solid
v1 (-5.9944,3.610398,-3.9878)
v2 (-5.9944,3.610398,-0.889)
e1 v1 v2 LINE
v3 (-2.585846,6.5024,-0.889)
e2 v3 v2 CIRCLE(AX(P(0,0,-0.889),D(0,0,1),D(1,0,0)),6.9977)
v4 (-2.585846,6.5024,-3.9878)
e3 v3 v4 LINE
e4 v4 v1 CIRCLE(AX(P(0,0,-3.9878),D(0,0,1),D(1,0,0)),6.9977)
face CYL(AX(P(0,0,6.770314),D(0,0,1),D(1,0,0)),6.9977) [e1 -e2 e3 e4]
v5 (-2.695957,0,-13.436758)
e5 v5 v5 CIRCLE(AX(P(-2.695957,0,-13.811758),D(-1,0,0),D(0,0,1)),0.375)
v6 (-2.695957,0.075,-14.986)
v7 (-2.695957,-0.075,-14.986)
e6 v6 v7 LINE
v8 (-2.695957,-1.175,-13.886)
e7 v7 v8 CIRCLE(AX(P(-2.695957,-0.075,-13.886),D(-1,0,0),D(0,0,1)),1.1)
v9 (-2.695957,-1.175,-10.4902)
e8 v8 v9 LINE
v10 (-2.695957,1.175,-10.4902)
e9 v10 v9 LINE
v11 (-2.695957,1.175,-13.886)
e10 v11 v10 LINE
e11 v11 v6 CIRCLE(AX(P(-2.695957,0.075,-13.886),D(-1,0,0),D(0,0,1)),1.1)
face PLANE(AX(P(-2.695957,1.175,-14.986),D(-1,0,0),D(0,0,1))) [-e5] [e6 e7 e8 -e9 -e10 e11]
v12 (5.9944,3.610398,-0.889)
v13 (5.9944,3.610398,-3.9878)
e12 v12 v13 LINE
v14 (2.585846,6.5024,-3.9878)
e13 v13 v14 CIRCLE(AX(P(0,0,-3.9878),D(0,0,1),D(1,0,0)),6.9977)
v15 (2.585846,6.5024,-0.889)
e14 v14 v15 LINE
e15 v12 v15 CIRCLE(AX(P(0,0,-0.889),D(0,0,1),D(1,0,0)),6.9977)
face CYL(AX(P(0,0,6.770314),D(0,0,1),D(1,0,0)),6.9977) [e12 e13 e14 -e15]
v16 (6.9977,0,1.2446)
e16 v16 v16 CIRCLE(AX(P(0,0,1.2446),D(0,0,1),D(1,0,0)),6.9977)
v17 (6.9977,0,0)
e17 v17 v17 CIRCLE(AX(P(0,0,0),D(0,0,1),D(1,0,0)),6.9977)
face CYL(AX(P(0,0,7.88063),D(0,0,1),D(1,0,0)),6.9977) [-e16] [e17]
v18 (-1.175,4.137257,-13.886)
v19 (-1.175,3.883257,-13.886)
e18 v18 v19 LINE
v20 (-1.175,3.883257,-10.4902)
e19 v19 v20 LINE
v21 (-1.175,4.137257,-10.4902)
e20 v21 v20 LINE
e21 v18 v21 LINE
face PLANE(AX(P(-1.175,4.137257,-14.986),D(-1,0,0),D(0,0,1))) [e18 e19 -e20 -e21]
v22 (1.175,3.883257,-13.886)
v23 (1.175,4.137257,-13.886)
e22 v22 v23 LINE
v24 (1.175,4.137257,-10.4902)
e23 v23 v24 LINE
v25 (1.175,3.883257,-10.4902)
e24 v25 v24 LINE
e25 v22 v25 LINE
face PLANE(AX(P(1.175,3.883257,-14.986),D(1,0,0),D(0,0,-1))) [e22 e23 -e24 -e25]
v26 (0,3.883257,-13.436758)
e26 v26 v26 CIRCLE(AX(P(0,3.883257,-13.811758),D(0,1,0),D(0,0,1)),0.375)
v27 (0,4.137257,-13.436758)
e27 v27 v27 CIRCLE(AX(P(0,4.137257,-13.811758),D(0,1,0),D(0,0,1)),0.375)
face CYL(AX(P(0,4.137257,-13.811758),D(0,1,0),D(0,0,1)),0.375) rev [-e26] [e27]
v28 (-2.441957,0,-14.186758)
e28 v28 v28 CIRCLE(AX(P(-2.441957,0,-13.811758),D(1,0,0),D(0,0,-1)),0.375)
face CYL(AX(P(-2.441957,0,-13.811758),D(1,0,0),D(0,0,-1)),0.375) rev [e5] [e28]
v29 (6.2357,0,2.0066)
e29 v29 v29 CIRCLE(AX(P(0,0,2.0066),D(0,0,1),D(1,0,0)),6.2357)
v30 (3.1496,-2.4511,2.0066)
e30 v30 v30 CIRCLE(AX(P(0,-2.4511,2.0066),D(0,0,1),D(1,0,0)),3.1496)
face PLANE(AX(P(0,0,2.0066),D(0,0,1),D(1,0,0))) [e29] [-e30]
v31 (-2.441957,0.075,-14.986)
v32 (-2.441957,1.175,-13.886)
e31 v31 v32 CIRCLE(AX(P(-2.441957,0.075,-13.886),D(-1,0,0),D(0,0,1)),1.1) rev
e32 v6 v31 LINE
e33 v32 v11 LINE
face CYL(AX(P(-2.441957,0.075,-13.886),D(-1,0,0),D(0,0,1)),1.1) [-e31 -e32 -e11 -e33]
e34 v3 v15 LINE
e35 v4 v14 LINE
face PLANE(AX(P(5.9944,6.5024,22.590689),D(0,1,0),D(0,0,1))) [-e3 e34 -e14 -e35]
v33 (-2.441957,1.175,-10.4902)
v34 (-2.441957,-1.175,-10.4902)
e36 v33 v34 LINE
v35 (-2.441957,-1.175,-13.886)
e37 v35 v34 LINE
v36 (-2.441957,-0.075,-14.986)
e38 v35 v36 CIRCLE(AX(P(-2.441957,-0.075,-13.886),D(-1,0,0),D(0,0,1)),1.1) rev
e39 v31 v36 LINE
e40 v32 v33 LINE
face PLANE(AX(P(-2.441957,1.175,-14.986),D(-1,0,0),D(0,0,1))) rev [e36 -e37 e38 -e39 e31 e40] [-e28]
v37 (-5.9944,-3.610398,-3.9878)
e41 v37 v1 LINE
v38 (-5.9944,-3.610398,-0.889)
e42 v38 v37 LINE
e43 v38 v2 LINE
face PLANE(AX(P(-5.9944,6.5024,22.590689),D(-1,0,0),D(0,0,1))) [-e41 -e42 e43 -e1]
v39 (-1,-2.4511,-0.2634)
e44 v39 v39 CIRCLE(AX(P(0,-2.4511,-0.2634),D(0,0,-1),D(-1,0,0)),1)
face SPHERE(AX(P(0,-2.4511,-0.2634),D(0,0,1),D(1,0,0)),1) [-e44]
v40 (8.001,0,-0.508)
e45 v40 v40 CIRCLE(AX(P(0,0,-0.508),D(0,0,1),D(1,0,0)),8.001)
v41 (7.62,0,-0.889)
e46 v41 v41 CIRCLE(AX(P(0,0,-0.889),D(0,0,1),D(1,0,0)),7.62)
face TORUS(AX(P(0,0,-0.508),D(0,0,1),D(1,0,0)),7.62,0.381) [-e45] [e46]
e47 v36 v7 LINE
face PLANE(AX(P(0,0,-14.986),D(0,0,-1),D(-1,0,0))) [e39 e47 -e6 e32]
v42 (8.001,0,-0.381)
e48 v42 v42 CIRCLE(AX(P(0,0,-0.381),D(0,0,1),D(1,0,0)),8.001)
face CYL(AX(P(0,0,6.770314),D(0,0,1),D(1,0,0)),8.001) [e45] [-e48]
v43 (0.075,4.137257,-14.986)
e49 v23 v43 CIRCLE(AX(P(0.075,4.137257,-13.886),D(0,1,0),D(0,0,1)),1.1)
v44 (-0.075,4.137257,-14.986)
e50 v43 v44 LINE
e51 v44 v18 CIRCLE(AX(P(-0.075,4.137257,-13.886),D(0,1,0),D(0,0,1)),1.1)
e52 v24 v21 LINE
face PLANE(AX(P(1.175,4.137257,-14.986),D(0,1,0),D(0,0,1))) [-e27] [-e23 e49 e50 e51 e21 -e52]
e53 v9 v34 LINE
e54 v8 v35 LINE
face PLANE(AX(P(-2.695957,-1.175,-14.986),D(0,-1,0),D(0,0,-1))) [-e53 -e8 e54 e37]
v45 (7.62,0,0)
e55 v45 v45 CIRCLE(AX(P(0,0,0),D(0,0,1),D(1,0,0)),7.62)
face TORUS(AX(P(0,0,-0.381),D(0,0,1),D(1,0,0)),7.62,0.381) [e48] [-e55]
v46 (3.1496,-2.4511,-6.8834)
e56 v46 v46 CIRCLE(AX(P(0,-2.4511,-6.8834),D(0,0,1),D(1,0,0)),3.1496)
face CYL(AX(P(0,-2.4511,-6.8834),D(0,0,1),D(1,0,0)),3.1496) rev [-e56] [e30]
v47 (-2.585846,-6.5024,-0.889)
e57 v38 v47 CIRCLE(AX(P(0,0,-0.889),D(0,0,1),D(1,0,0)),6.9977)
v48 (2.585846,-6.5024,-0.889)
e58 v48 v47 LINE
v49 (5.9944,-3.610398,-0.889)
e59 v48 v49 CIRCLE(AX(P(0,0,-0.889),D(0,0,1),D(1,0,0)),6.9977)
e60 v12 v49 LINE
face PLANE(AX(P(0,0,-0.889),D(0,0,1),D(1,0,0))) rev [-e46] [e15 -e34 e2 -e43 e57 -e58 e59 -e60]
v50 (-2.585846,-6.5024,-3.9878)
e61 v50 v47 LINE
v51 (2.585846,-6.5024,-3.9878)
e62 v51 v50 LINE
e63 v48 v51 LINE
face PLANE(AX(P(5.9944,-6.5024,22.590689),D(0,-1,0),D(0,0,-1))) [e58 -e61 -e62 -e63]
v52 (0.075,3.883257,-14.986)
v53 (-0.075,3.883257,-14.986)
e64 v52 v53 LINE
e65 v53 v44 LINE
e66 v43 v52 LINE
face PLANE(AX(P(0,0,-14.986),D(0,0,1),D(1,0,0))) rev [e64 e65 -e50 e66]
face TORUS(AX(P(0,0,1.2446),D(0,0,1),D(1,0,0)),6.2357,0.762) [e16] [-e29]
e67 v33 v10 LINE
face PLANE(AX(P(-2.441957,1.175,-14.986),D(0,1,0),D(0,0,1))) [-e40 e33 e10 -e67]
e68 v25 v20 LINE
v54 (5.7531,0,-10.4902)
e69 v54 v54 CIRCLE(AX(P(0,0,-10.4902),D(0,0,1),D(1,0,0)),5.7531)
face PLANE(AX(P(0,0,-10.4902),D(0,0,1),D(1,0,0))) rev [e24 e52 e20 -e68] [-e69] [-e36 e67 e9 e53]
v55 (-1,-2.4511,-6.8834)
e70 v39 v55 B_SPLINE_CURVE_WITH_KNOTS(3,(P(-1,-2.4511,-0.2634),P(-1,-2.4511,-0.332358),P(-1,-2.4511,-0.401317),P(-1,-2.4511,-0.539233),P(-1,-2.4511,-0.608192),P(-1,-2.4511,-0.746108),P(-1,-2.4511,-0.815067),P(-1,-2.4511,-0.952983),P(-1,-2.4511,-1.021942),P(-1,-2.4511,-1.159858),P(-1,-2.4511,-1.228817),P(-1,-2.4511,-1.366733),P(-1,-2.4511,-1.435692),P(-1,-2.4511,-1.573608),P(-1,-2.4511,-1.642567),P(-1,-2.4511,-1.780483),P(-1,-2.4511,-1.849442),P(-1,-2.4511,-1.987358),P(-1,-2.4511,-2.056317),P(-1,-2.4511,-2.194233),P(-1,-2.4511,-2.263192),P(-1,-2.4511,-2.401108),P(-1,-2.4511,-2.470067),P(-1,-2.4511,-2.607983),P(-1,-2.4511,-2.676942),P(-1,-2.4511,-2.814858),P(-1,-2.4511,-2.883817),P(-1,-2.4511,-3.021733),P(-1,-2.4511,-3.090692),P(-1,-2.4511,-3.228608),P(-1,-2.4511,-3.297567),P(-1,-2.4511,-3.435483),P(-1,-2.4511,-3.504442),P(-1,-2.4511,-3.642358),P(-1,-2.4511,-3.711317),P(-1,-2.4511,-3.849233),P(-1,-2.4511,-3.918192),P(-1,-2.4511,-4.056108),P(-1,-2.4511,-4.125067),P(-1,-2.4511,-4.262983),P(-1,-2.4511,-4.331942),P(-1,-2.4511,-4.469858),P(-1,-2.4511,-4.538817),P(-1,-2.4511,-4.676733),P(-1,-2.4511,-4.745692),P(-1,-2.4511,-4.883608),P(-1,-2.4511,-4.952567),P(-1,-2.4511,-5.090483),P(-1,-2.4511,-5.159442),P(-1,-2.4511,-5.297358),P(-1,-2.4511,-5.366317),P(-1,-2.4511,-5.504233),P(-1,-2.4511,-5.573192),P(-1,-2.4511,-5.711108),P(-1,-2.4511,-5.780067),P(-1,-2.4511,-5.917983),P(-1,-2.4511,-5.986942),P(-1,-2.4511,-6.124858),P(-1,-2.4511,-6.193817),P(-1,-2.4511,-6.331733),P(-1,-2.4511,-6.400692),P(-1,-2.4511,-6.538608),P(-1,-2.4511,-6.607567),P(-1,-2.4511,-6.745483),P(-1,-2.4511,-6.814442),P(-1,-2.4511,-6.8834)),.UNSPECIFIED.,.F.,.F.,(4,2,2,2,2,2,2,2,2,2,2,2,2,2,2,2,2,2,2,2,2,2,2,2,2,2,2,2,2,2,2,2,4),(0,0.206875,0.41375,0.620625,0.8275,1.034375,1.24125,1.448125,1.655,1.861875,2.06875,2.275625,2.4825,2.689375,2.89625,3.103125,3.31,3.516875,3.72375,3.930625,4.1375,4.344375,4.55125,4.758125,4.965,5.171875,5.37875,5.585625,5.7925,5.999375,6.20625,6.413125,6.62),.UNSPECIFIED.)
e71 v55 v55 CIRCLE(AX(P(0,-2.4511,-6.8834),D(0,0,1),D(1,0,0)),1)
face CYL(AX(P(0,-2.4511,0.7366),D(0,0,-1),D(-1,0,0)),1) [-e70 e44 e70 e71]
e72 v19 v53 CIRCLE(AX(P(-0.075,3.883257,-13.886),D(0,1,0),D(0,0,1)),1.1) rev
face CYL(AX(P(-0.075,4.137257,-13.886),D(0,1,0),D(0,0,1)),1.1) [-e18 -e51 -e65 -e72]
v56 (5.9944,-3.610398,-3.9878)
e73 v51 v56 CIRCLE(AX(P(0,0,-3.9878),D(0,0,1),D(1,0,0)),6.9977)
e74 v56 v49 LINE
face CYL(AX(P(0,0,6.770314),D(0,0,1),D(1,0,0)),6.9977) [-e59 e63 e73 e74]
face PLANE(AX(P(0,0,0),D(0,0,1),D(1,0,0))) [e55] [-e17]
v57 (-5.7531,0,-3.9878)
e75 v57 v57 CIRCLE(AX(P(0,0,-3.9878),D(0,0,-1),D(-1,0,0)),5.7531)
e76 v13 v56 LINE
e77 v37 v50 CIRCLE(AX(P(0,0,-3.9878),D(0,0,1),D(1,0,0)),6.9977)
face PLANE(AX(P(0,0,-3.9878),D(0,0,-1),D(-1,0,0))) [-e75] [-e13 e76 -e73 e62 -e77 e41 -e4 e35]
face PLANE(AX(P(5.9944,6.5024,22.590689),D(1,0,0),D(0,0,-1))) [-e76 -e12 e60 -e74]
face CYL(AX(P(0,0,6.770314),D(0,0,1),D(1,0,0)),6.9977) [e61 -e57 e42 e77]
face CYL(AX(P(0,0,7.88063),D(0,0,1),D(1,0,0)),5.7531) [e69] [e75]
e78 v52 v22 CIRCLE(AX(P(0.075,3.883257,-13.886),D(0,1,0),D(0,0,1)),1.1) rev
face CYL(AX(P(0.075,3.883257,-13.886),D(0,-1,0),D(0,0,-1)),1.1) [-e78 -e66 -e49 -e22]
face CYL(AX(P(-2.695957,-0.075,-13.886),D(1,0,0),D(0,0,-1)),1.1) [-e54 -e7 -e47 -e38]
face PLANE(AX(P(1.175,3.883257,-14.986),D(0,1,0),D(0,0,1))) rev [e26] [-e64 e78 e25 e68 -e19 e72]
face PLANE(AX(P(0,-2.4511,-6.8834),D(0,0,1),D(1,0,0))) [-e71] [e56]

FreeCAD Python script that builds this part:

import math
import FreeCAD as App
import Part
import Sketcher
from FreeCAD import Vector
Q = App.Units.Quantity


def edges_at(feature, points):
    """Names of the edges that pass closest to the given points."""
    edges = feature.Shape.Edges
    near = lambda p: min(range(len(edges)), key=lambda i: edges[i].distToShape(Part.Vertex(*p))[0])
    return sorted({f"Edge{near(p) + 1}" for p in points})

doc = App.newDocument("Part")
body = doc.addObject("PartDesign::Body", "Body")

# Sketch on YZ plane
sketch1 = body.newObject("Sketcher::SketchObject", "Sketch")
sketch1.AttachmentSupport = (doc.getObject("YZ_Plane"), [""])
sketch1.MapMode = "FlatFace"
sketch1.addGeometry([
    Part.LineSegment(Vector(0, 2, 0), Vector(0, -10.5, 0)),  # 0
    Part.LineSegment(Vector(0, -10.5, 0), Vector(5.8, -10.5, 0)),  # 1
    Part.LineSegment(Vector(5.8, -10.5, 0), Vector(5.8, 0, 0)),  # 2
    Part.LineSegment(Vector(5.8, 0, 0), Vector(7, 0, 0)),  # 3
    Part.LineSegment(Vector(7, 0, 0), Vector(7, 1.2, 0)),  # 4
    Part.ArcOfCircle(Part.Circle(Vector(6.2, 1.2, 0), Vector(0, 0, 1), 0.8), math.radians(0), math.radians(90)),  # 5
    Part.LineSegment(Vector(6.2, 2, 0), Vector(0, 2, 0)),  # 6
], False)
sketch1.addConstraint([
    Sketcher.Constraint("Coincident", 0, 2, 1, 1),
    Sketcher.Constraint("Coincident", 1, 2, 2, 1),
    Sketcher.Constraint("Coincident", 2, 2, 3, 1),
    Sketcher.Constraint("Coincident", 3, 2, 4, 1),
    Sketcher.Constraint("Tangent", 4, 2, 5, 1),
    Sketcher.Constraint("Tangent", 5, 2, 6, 1),
    Sketcher.Constraint("Coincident", 6, 2, 0, 1),
    Sketcher.Constraint("Vertical", 0),
    Sketcher.Constraint("Horizontal", 1),
    Sketcher.Constraint("Vertical", 2),
    Sketcher.Constraint("Horizontal", 3),
    Sketcher.Constraint("Vertical", 4),
    Sketcher.Constraint("Horizontal", 6),
    Sketcher.Constraint("PointOnObject", 0, 2, -2),
    Sketcher.Constraint("PointOnObject", 2, 2, -1),
    Sketcher.Constraint("Equal", 3, 4),
    Sketcher.Constraint("Radius", 5, Q("0.03 in")),
    Sketcher.Constraint("DistanceX", 3, 1, 3, 2, Q("0.049 in")),
    Sketcher.Constraint("DistanceY", 0, 2, 0, 1, Q("0.492 in")),
    Sketcher.Constraint("DistanceX", 1, 1, 1, 2, Q("0.2265 in")),
])
revolution = body.newObject("PartDesign::Revolution", "Revolution")
revolution.Profile = sketch1
revolution.ReferenceAxis = (sketch1, ["V_Axis"])
revolution.Angle = 360

# Sketch on XY plane
sketch2 = body.newObject("Sketcher::SketchObject", "Sketch001")
sketch2.AttachmentSupport = (doc.getObject("XY_Plane"), [""])
sketch2.MapMode = "FlatFace"
sketch2.AttachmentOffset = App.Placement(Vector(0, 0, 0.079 * 25.4), App.Rotation())
sketch2.addGeometry(Part.Circle(Vector(0, -2.5, 0), Vector(0, 0, 1), 3.1), False)
sketch2.addConstraint([
    Sketcher.Constraint("PointOnObject", 0, 3, -2),
    Sketcher.Constraint("Diameter", 0, Q("0.248 in")),
    Sketcher.Constraint("DistanceY", 0, 3, -1, 1, Q("0.0965 in")),
])
pocket1 = body.newObject("PartDesign::Pocket", "Pocket")
pocket1.Profile = sketch2
pocket1.Length = Q("0.35 in")
body2 = doc.addObject("PartDesign::Body", "Body001")

# Sketch on YZ plane
sketch3 = body2.newObject("Sketcher::SketchObject", "Sketch002")
sketch3.AttachmentSupport = (doc.getObject("YZ_Plane001"), [""])
sketch3.MapMode = "FlatFace"
sketch3.addGeometry([
    Part.LineSegment(Vector(5.75, -3.99, 0), Vector(7, -3.99, 0)),  # 0
    Part.LineSegment(Vector(7, -3.99, 0), Vector(7, -0.89, 0)),  # 1
    Part.LineSegment(Vector(7, -0.89, 0), Vector(7.62, -0.89, 0)),  # 2
    Part.ArcOfCircle(Part.Circle(Vector(7.62, -0.51, 0), Vector(0, 0, 1), 0.38), math.radians(-90), math.radians(0)),  # 3
    Part.LineSegment(Vector(8, -0.51, 0), Vector(8, -0.38, 0)),  # 4
    Part.ArcOfCircle(Part.Circle(Vector(7.62, -0.38, 0), Vector(0, 0, 1), 0.38), math.radians(0), math.radians(90)),  # 5
    Part.LineSegment(Vector(7.62, 0, 0), Vector(5.75, 0, 0)),  # 6
    Part.LineSegment(Vector(5.75, 0, 0), Vector(5.75, -3.99, 0)),  # 7
], False)
sketch3.addConstraint([
    Sketcher.Constraint("Coincident", 0, 2, 1, 1),
    Sketcher.Constraint("Coincident", 1, 2, 2, 1),
    Sketcher.Constraint("Tangent", 2, 2, 3, 1),
    Sketcher.Constraint("Tangent", 3, 2, 4, 1),
    Sketcher.Constraint("Tangent", 4, 2, 5, 1),
    Sketcher.Constraint("Tangent", 5, 2, 6, 1),
    Sketcher.Constraint("Coincident", 6, 2, 7, 1),
    Sketcher.Constraint("Coincident", 7, 2, 0, 1),
    Sketcher.Constraint("Horizontal", 0),
    Sketcher.Constraint("Vertical", 1),
    Sketcher.Constraint("Horizontal", 2),
    Sketcher.Constraint("Vertical", 4),
    Sketcher.Constraint("Horizontal", 6),
    Sketcher.Constraint("Vertical", 7),
    Sketcher.Constraint("Equal", 3, 5),
    Sketcher.Constraint("PointOnObject", 5, 2, -1),
    Sketcher.Constraint("Radius", 3, Q("0.015 in")),
    Sketcher.Constraint("DistanceX", -1, 1, 3, 3, Q("0.3 in")),
    Sketcher.Constraint("DistanceX", 0, 1, 0, 2, Q("0.049 in")),
    Sketcher.Constraint("DistanceY", 1, 1, 1, 2, Q("0.122 in")),
    Sketcher.Constraint("DistanceY", 4, 1, 4, 2, Q("0.005 in")),
    Sketcher.Constraint("DistanceX", 2, 1, 2, 2, Q("0.0245 in")),
])
revolution2 = body2.newObject("PartDesign::Revolution", "Revolution001")
revolution2.Profile = sketch3
revolution2.ReferenceAxis = (sketch3, ["V_Axis"])
revolution2.Angle = 360
doc.recompute()

boolean = body2.newObject("PartDesign::Boolean", "Boolean")
boolean.Type = "Fuse"
boolean.addObjects([body])

# Sketch on XY plane
sketch4 = body2.newObject("Sketcher::SketchObject", "Sketch003")
sketch4.AttachmentSupport = (doc.getObject("XY_Plane001"), [""])
sketch4.MapMode = "FlatFace"
sketch4.AttachmentOffset = App.Placement(Vector(0, 0, -0.271 * 25.4), App.Rotation())
sketch4.addGeometry(Part.Circle(Vector(0, -2.5, 0), Vector(0, 0, 1), 1), False)
sketch4.addConstraint([
    Sketcher.Constraint("PointOnObject", 0, 3, -2),
    Sketcher.Constraint("Diameter", 0, Q("2 mm")),
    Sketcher.Constraint("DistanceY", 0, 3, -1, 1, Q("0.0965 in")),
])
pad1 = body2.newObject("PartDesign::Pad", "Pad")
pad1.Profile = sketch4
pad1.Length = Q("0.3 in")
doc.recompute()

fillet = body2.newObject("PartDesign::Fillet", "Fillet")
fillet.Base = (pad1, edges_at(pad1, [(1, -2.451, 0.737)]))
fillet.Radius = 1

# Sketch on XY plane
sketch5 = body2.newObject("Sketcher::SketchObject", "Sketch004")
sketch5.AttachmentSupport = (doc.getObject("XY_Plane001"), [""])
sketch5.MapMode = "FlatFace"
sketch5.AttachmentOffset = App.Placement(Vector(0, 0, -0.413 * 25.4), App.Rotation())
sketch5.addGeometry([
    Part.LineSegment(Vector(1.18, 4.14, 0), Vector(1.18, 3.88, 0)),  # 0
    Part.LineSegment(Vector(1.18, 3.88, 0), Vector(-1.18, 3.88, 0)),  # 1
    Part.LineSegment(Vector(-1.18, 3.88, 0), Vector(-1.18, 4.14, 0)),  # 2
    Part.LineSegment(Vector(-1.18, 4.14, 0), Vector(1.18, 4.14, 0)),  # 3
    Part.LineSegment(Vector(-2.44, 1.18, 0), Vector(-2.44, -1.18, 0)),  # 4
    Part.LineSegment(Vector(-2.44, -1.18, 0), Vector(-2.7, -1.18, 0)),  # 5
    Part.LineSegment(Vector(-2.7, -1.18, 0), Vector(-2.7, 1.18, 0)),  # 6
    Part.LineSegment(Vector(-2.7, 1.18, 0), Vector(-2.44, 1.18, 0)),  # 7
], False)
sketch5.addConstraint([
    Sketcher.Constraint("Coincident", 0, 2, 1, 1),
    Sketcher.Constraint("Coincident", 1, 2, 2, 1),
    Sketcher.Constraint("Coincident", 2, 2, 3, 1),
    Sketcher.Constraint("Coincident", 3, 2, 0, 1),
    Sketcher.Constraint("Coincident", 4, 2, 5, 1),
    Sketcher.Constraint("Coincident", 5, 2, 6, 1),
    Sketcher.Constraint("Coincident", 6, 2, 7, 1),
    Sketcher.Constraint("Coincident", 7, 2, 4, 1),
    Sketcher.Constraint("Vertical", 0),
    Sketcher.Constraint("Horizontal", 1),
    Sketcher.Constraint("Vertical", 2),
    Sketcher.Constraint("Horizontal", 3),
    Sketcher.Constraint("Vertical", 4),
    Sketcher.Constraint("Horizontal", 5),
    Sketcher.Constraint("Vertical", 6),
    Sketcher.Constraint("Horizontal", 7),
    Sketcher.Constraint("Equal", 7, 0),
    Sketcher.Constraint("Equal", 3, 4),
    Sketcher.Constraint("DistanceX", 5, 2, 5, 1, Q("0.01 in")),
    Sketcher.Constraint("DistanceX", 1, 2, 1, 1, Q("2.35 mm")),
    Sketcher.Constraint("DistanceX", 4, 2, 0, 2, Q("0.1423999 in")),
    Sketcher.Constraint("DistanceX", -1, 1, 0, 2, Q("1.175 mm")),
    Sketcher.Constraint("DistanceY", 4, 2, -1, 1, Q("1.175 mm")),
    Sketcher.Constraint("DistanceY", -1, 1, 0, 2, Q("3.883257 mm")),
])
pad2 = body2.newObject("PartDesign::Pad", "Pad001")
pad2.Profile = sketch5
pad2.Length = Q("0.177 in")
pad2.Reversed = True
doc.recompute()

fillet2 = body2.newObject("PartDesign::Fillet", "Fillet001")
fillet2.Base = (pad2, edges_at(pad2, [
    (-1.175, 4.01, -14.986),
    (1.175, 4.01, -14.986),
    (-2.569, -1.175, -14.986),
    (-2.569, 1.175, -14.986),
]))
fillet2.Radius = 1.1

# Sketch on YZ plane
sketch6 = body2.newObject("Sketcher::SketchObject", "Sketch005")
sketch6.AttachmentSupport = (doc.getObject("YZ_Plane001"), [""])
sketch6.MapMode = "FlatFace"
sketch6.AttachmentOffset = App.Placement(Vector(0, 0, -2.441957), App.Rotation())
sketch6.addGeometry(Part.Circle(Vector(0, -13.81, 0), Vector(0, 0, 1), 0.38), False)
sketch6.addConstraint([
    Sketcher.Constraint("PointOnObject", 0, 3, -2),
    Sketcher.Constraint("Diameter", 0, Q("0.75 mm")),
    Sketcher.Constraint("DistanceY", 0, 3, -1, 1, Q("13.811758 mm")),
])
doc.recompute()
hole = body2.newObject("PartDesign::Hole", "Hole")
hole.Profile = sketch6
hole.ThreadType = "None"
hole.Diameter = 0.75
hole.DepthType = "ThroughAll"

# Sketch on XZ plane
sketch7 = body2.newObject("Sketcher::SketchObject", "Sketch006")
sketch7.AttachmentSupport = (doc.getObject("XZ_Plane001"), [""])
sketch7.MapMode = "FlatFace"
sketch7.AttachmentOffset = App.Placement(Vector(0, 0, -4.137257), App.Rotation())
sketch7.addGeometry(Part.Circle(Vector(0, -13.81, 0), Vector(0, 0, 1), 0.38), False)
sketch7.addConstraint([
    Sketcher.Constraint("PointOnObject", 0, 3, -2),
    Sketcher.Constraint("Diameter", 0, Q("0.75 mm")),
    Sketcher.Constraint("DistanceY", 0, 3, -1, 1, Q("13.811758 mm")),
])
doc.recompute()
hole2 = body2.newObject("PartDesign::Hole", "Hole001")
hole2.Profile = sketch7
hole2.ThreadType = "None"
hole2.Diameter = 0.75
hole2.DepthType = "ThroughAll"
hole2.Reversed = True

# Sketch on XY plane
sketch8 = body2.newObject("Sketcher::SketchObject", "Sketch007")
sketch8.AttachmentSupport = (doc.getObject("XY_Plane001"), [""])
sketch8.MapMode = "FlatFace"
sketch8.AttachmentOffset = App.Placement(Vector(0, 0, -0.413 * 25.4), App.Rotation())
sketch8.addGeometry([
    Part.LineSegment(Vector(12, 12, 0), Vector(12, -12, 0)),  # 0
    Part.LineSegment(Vector(12, -12, 0), Vector(-12, -12, 0)),  # 1
    Part.LineSegment(Vector(-12, -12, 0), Vector(-12, 12, 0)),  # 2
    Part.LineSegment(Vector(-12, 12, 0), Vector(12, 12, 0)),  # 3
    Part.LineSegment(Vector(-6, -7, 0), Vector(6, -7, 0)),  # 4
    Part.LineSegment(Vector(6, -7, 0), Vector(6, 7, 0)),  # 5
    Part.LineSegment(Vector(6, 7, 0), Vector(-6, 7, 0)),  # 6
    Part.LineSegment(Vector(-6, 7, 0), Vector(-6, -7, 0)),  # 7
], False)
sketch8.addConstraint([
    Sketcher.Constraint("Coincident", 0, 2, 1, 1),
    Sketcher.Constraint("Coincident", 1, 2, 2, 1),
    Sketcher.Constraint("Coincident", 2, 2, 3, 1),
    Sketcher.Constraint("Coincident", 3, 2, 0, 1),
    Sketcher.Constraint("Coincident", 4, 2, 5, 1),
    Sketcher.Constraint("Coincident", 5, 2, 6, 1),
    Sketcher.Constraint("Coincident", 6, 2, 7, 1),
    Sketcher.Constraint("Coincident", 7, 2, 4, 1),
    Sketcher.Constraint("Vertical", 0),
    Sketcher.Constraint("Horizontal", 1),
    Sketcher.Constraint("Vertical", 2),
    Sketcher.Constraint("Horizontal", 3),
    Sketcher.Constraint("Horizontal", 4),
    Sketcher.Constraint("Vertical", 5),
    Sketcher.Constraint("Horizontal", 6),
    Sketcher.Constraint("Vertical", 7),
    Sketcher.Constraint("Symmetric", 0, 2, 2, 2, -1, 1),
    Sketcher.Constraint("Symmetric", 4, 2, 6, 2, -1, 1),
    Sketcher.Constraint("Equal", 3, 0),
    Sketcher.Constraint("DistanceX", 4, 1, 4, 2, Q("0.472 in")),
    Sketcher.Constraint("DistanceY", 5, 1, 5, 2, Q("0.512 in")),
    Sketcher.Constraint("DistanceX", 1, 2, 1, 1, Q("23.662 mm")),
])
pocket2 = body2.newObject("PartDesign::Pocket", "Pocket001")
pocket2.Profile = sketch8
pocket2.Length = Q("0.378 in")
pocket2.Reversed = True

doc.recompute()
